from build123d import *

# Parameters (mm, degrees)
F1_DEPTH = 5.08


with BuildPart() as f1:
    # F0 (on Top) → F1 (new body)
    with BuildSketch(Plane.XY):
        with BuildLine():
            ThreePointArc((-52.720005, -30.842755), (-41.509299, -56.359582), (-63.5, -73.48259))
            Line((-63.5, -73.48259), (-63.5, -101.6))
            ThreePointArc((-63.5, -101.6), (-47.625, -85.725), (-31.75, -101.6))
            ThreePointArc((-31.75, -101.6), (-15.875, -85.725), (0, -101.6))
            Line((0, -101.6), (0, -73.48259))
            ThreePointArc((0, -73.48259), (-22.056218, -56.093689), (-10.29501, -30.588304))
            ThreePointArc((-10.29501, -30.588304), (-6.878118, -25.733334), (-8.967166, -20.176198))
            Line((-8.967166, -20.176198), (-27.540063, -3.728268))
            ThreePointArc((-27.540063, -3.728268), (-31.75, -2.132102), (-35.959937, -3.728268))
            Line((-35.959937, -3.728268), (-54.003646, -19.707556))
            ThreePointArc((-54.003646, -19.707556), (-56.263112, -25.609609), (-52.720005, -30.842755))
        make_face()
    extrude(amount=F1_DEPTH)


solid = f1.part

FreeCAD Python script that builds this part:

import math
import FreeCAD as App
import Part
import Sketcher
from FreeCAD import Vector
Q = App.Units.Quantity

doc = App.newDocument("Part")
body = doc.addObject("PartDesign::Body", "Body")

sketch1 = doc.addObject("Sketcher::SketchObject", "Sketch")
body.addObject(sketch1)
sketch1.AttachmentSupport = (doc.XY_Plane, [""])
sketch1.MapMode = "FlatFace"
sketch1.addGeometry([
    Part.ArcOfCircle(Part.Circle(Vector(-64, -51, 0), Vector(0, 0, 1), 23), math.radians(-90), math.radians(62)),
    Part.LineSegment(Vector(-64, -73, 0), Vector(-64, -102, 0)),
    Part.ArcOfCircle(Part.Circle(Vector(-48, -102, 0), Vector(0, 0, 1), 16), math.radians(0), math.radians(180)),
    Part.ArcOfCircle(Part.Circle(Vector(-16, -102, 0), Vector(0, 0, 1), 16), math.radians(0), math.radians(180)),
    Part.LineSegment(Vector(0, -102, 0), Vector(0, -73, 0)),
    Part.ArcOfCircle(Part.Circle(Vector(0, -51, 0), Vector(0, 0, 1), 23), math.radians(117), math.radians(270)),
    Part.ArcOfCircle(Part.Circle(Vector(-13, -25, 0), Vector(0, 0, 1), 6), math.radians(-63), math.radians(48)),
    Part.LineSegment(Vector(-9, -20, 0), Vector(-28, -4, 0)),
    Part.ArcOfCircle(Part.Circle(Vector(-32, -8, 0), Vector(0, 0, 1), 6), math.radians(48), math.radians(132)),
    Part.LineSegment(Vector(-36, -4, 0), Vector(-54, -20, 0)),
    Part.ArcOfCircle(Part.Circle(Vector(-49, -25, 0), Vector(0, 0, 1), 7), math.radians(132), math.radians(242)),
], False)
sketch1.addConstraint([
    Sketcher.Constraint("Coincident", 0, 1, 1, 1),
    Sketcher.Constraint("Tangent", 1, 2, 2, 2),
    Sketcher.Constraint("Tangent", 2, 1, 3, 2),
    Sketcher.Constraint("Tangent", 3, 1, 4, 1),
    Sketcher.Constraint("Coincident", 4, 2, 5, 2),
    Sketcher.Constraint("Tangent", 5, 1, 6, 1),
    Sketcher.Constraint("Tangent", 6, 2, 7, 1),
    Sketcher.Constraint("Tangent", 7, 2, 8, 1),
    Sketcher.Constraint("Tangent", 8, 2, 9, 1),
    Sketcher.Constraint("Tangent", 9, 2, 10, 1),
    Sketcher.Constraint("Tangent", 10, 2, 0, 2),
    Sketcher.Constraint("Vertical", 1),
    Sketcher.Constraint("Vertical", 4),
    Sketcher.Constraint("Equal", 2, 3),
    Sketcher.Constraint("Equal", 0, 5),
    Sketcher.Constraint("PointOnObject", 5, 3, -2),
    Sketcher.Constraint("PointOnObject", 3, 1, -2),
    Sketcher.Constraint("Horizontal", 2, 3, 3, 3),
    Sketcher.Constraint("Horizontal", 0, 3, 5, 3),
    Sketcher.Constraint("Horizontal", 7, 2, 8, 2),
    Sketcher.Constraint("Vertical", 8, 3, 2, 1),
    Sketcher.Constraint("Radius", 6, Q("0.25 in")),
    Sketcher.Constraint("Radius", 8, Q("0.2500001 in")),
    Sketcher.Constraint("DistanceY", 0, 3, -1, 1, Q("2 in")),
    Sketcher.Constraint("DistanceY", 2, 3, -1, 1, Q("4 in")),
    Sketcher.Constraint("Radius", 2, Q("0.625 in")),
    Sketcher.Constraint("DistanceX", 0, 3, -1, 1, Q("2.5 in")),
    Sketcher.Constraint("Radius", 0, 22.682591),
    Sketcher.Constraint("Radius", 10, 6.83777),
    Sketcher.Constraint("DistanceY", 6, 2, -1, 1, 20.176198),
    Sketcher.Constraint("DistanceY", 5, 1, 8, 3, 22.1062),
])
pad1 = doc.addObject("PartDesign::Pad", "Pad")
body.addObject(pad1)
pad1.Profile = sketch1
pad1.Length = Q("0.2 in")

doc.recompute()
